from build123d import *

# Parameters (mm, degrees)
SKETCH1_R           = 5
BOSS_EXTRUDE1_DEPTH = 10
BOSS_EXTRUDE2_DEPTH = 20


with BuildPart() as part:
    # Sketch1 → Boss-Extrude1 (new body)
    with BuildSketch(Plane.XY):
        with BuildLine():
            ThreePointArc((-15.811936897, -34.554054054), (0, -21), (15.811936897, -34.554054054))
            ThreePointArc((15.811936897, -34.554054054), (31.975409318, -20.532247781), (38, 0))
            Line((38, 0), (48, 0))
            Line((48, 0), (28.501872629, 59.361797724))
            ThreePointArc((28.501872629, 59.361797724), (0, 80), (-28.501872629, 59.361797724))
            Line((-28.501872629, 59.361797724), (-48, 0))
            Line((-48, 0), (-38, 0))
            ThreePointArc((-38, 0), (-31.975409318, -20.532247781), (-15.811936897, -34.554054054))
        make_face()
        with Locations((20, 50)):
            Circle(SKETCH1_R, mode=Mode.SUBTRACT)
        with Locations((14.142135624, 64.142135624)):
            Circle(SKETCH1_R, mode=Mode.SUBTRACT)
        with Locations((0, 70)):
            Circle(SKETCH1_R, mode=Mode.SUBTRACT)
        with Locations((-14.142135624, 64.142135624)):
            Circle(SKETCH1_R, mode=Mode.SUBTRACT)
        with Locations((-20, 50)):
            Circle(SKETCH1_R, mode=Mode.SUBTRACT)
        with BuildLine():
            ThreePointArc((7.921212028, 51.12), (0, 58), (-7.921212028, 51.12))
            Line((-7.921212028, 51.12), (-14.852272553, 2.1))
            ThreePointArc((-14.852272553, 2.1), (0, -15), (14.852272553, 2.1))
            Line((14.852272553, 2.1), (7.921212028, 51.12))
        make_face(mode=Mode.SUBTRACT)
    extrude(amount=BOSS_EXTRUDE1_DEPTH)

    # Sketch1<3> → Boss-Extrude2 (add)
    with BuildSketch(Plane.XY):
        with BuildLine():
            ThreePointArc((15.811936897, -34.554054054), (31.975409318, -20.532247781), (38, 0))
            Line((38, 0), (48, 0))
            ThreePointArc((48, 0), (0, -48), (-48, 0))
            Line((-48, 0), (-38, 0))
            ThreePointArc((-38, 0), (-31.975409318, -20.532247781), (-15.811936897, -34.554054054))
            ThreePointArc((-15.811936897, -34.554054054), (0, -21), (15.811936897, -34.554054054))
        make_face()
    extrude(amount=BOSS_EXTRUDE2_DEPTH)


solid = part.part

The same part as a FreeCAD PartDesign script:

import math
import FreeCAD as App
import Part
import Sketcher

V = App.Vector

doc = App.newDocument("Part")
body = doc.addObject("PartDesign::Body", "Body")

# Sketch on XY plane
sketch1 = body.newObject("Sketcher::SketchObject", "Sketch")
sketch1.AttachmentSupport = (doc.getObject("XY_Plane"), [""])
sketch1.MapMode = "FlatFace"
sketch1.addGeometry([
    Part.ArcOfCircle(Part.Circle(V(0, -37, 0), V(0, 0, 1), 16), math.radians(9), math.radians(171)),  # 0
    Part.ArcOfCircle(Part.Circle(V(0, 0, 0), V(0, 0, 1), 38), math.radians(-65), math.radians(0)),  # 1
    Part.LineSegment(V(38, 0, 0), V(48, 0, 0)),  # 2
    Part.LineSegment(V(48, 0, 0), V(29, 59, 0)),  # 3
    Part.ArcOfCircle(Part.Circle(V(0, 50, 0), V(0, 0, 1), 30), math.radians(18), math.radians(162)),  # 4
    Part.LineSegment(V(-29, 59, 0), V(-48, 0, 0)),  # 5
    Part.LineSegment(V(-48, 0, 0), V(-38, 0, 0)),  # 6
    Part.ArcOfCircle(Part.Circle(V(0, 0, 0), V(0, 0, 1), 38), math.radians(180), math.radians(245)),  # 7
    Part.ArcOfCircle(Part.Circle(V(0, 50, 0), V(0, 0, 1), 8), math.radians(8), math.radians(172)),  # 8
    Part.LineSegment(V(8, 51, 0), V(15, 2, 0)),  # 9
    Part.ArcOfCircle(Part.Circle(V(0, 0, 0), V(0, 0, 1), 15), math.radians(172), math.radians(368)),  # 10
    Part.LineSegment(V(-15, 2, 0), V(-8, 51, 0)),  # 11
    Part.Circle(V(-20, 50, 0), V(0, 0, 1), 5),  # 12
    Part.Circle(V(-14, 64, 0), V(0, 0, 1), 5),  # 13
    Part.Circle(V(20, 50, 0), V(0, 0, 1), 5),  # 14
    Part.Circle(V(0, 70, 0), V(0, 0, 1), 5),  # 15
    Part.Circle(V(14, 64, 0), V(0, 0, 1), 5),  # 16
], False)
sketch1.addConstraint([
    Sketcher.Constraint("Coincident", 0, 1, 1, 1),
    Sketcher.Constraint("Coincident", 1, 2, 2, 1),
    Sketcher.Constraint("Coincident", 2, 2, 3, 1),
    Sketcher.Constraint("Tangent", 3, 2, 4, 1),
    Sketcher.Constraint("Tangent", 4, 2, 5, 1),
    Sketcher.Constraint("Coincident", 5, 2, 6, 1),
    Sketcher.Constraint("Coincident", 6, 2, 7, 1),
    Sketcher.Constraint("Coincident", 7, 2, 0, 2),
    Sketcher.Constraint("Tangent", 8, 1, 9, 1),
    Sketcher.Constraint("Tangent", 9, 2, 10, 2),
    Sketcher.Constraint("Tangent", 10, 1, 11, 1),
    Sketcher.Constraint("Tangent", 11, 2, 8, 2),
    Sketcher.Constraint("Horizontal", 2),
    Sketcher.Constraint("Horizontal", 6),
    Sketcher.Constraint("Coincident", 1, 3, -1, 1),
    Sketcher.Constraint("Coincident", 7, 3, -1, 1),
    Sketcher.Constraint("Coincident", 10, 3, -1, 1),
    Sketcher.Constraint("Coincident", 8, 3, 4, 3),
    Sketcher.Constraint("Equal", 1, 7),
    Sketcher.Constraint("Equal", 12, 13),
    Sketcher.Constraint("Equal", 13, 14),
    Sketcher.Constraint("Equal", 14, 15),
    Sketcher.Constraint("Equal", 15, 16),
    Sketcher.Constraint("Symmetric", 2, 2, 5, 2, -1, 1),
    Sketcher.Constraint("Symmetric", 12, 3, 14, 3, -2),
    Sketcher.Constraint("Symmetric", 13, 3, 16, 3, -2),
    Sketcher.Constraint("Symmetric", 3, 2, 4, 2, -2),
    Sketcher.Constraint("PointOnObject", 0, 3, -2),
    Sketcher.Constraint("PointOnObject", 15, 3, -2),
    Sketcher.Constraint("Horizontal", 8, 3, 12, 3),
    Sketcher.Constraint("Diameter", 12, 10.0),
    Sketcher.Constraint("Radius", 0, 16.0),
    Sketcher.Constraint("Radius", 1, 38.0),
    Sketcher.Constraint("Radius", 4, 30.0),
    Sketcher.Constraint("Radius", 8, 8.0),
    Sketcher.Constraint("Radius", 10, 15.0),
    Sketcher.Constraint("DistanceX", 2, 1, 2, 2, 10.0),
    Sketcher.Constraint("DistanceY", 0, 3, -1, 1, 37.0),
    Sketcher.Constraint("DistanceY", -1, 1, 4, 3, 50.0),
    Sketcher.Constraint("DistanceX", 12, 3, -1, 1, 20.0),
    Sketcher.Constraint("DistanceY", -1, 1, 15, 3, 70.0),
    Sketcher.Constraint("DistanceX", 13, 3, 16, 3, 28.284271),
    Sketcher.Constraint("DistanceY", -1, 1, 13, 3, 64.142136),
])
pad1 = body.newObject("PartDesign::Pad", "Pad")
pad1.Profile = sketch1
pad1.Length = 10

# Sketch on XY plane
sketch2 = body.newObject("Sketcher::SketchObject", "Sketch001")
sketch2.AttachmentSupport = (doc.getObject("XY_Plane"), [""])
sketch2.MapMode = "FlatFace"
sketch2.addGeometry([
    Part.ArcOfCircle(Part.Circle(V(0, 0, 0), V(0, 0, 1), 38), math.radians(-65), math.radians(0)),  # 0
    Part.ArcOfCircle(Part.Circle(V(0, -37, 0), V(0, 0, 1), 16), math.radians(9), math.radians(171)),  # 1
    Part.ArcOfCircle(Part.Circle(V(0, 0, 0), V(0, 0, 1), 38), math.radians(180), math.radians(245)),  # 2
    Part.LineSegment(V(-38, 0, 0), V(-48, 0, 0)),  # 3
    Part.ArcOfCircle(Part.Circle(V(0, 0, 0), V(0, 0, 1), 48), math.radians(180), math.radians(360)),  # 4
    Part.LineSegment(V(48, 0, 0), V(38, 0, 0)),  # 5
], False)
sketch2.addConstraint([
    Sketcher.Constraint("Coincident", 0, 1, 1, 1),
    Sketcher.Constraint("Coincident", 1, 2, 2, 2),
    Sketcher.Constraint("Coincident", 2, 1, 3, 1),
    Sketcher.Constraint("Coincident", 3, 2, 4, 1),
    Sketcher.Constraint("Coincident", 4, 2, 5, 1),
    Sketcher.Constraint("Coincident", 5, 2, 0, 2),
    Sketcher.Constraint("Horizontal", 3),
    Sketcher.Constraint("Horizontal", 5),
    Sketcher.Constraint("Coincident", 0, 3, -1, 1),
    Sketcher.Constraint("Coincident", 2, 3, -1, 1),
    Sketcher.Constraint("Coincident", 4, 3, -1, 1),
    Sketcher.Constraint("Equal", 0, 2),
    Sketcher.Constraint("PointOnObject", 1, 3, -2),
    Sketcher.Constraint("PointOnObject", 2, 1, -1),
    Sketcher.Constraint("PointOnObject", 4, 2, -1),
    Sketcher.Constraint("Radius", 0, 38.0),
    Sketcher.Constraint("Radius", 1, 16.0),
    Sketcher.Constraint("Radius", 4, 48.0),
    Sketcher.Constraint("DistanceY", 1, 3, -1, 1, 37.0),
])
pad2 = body.newObject("PartDesign::Pad", "Pad001")
pad2.Profile = sketch2
pad2.Length = 20

doc.recompute()
